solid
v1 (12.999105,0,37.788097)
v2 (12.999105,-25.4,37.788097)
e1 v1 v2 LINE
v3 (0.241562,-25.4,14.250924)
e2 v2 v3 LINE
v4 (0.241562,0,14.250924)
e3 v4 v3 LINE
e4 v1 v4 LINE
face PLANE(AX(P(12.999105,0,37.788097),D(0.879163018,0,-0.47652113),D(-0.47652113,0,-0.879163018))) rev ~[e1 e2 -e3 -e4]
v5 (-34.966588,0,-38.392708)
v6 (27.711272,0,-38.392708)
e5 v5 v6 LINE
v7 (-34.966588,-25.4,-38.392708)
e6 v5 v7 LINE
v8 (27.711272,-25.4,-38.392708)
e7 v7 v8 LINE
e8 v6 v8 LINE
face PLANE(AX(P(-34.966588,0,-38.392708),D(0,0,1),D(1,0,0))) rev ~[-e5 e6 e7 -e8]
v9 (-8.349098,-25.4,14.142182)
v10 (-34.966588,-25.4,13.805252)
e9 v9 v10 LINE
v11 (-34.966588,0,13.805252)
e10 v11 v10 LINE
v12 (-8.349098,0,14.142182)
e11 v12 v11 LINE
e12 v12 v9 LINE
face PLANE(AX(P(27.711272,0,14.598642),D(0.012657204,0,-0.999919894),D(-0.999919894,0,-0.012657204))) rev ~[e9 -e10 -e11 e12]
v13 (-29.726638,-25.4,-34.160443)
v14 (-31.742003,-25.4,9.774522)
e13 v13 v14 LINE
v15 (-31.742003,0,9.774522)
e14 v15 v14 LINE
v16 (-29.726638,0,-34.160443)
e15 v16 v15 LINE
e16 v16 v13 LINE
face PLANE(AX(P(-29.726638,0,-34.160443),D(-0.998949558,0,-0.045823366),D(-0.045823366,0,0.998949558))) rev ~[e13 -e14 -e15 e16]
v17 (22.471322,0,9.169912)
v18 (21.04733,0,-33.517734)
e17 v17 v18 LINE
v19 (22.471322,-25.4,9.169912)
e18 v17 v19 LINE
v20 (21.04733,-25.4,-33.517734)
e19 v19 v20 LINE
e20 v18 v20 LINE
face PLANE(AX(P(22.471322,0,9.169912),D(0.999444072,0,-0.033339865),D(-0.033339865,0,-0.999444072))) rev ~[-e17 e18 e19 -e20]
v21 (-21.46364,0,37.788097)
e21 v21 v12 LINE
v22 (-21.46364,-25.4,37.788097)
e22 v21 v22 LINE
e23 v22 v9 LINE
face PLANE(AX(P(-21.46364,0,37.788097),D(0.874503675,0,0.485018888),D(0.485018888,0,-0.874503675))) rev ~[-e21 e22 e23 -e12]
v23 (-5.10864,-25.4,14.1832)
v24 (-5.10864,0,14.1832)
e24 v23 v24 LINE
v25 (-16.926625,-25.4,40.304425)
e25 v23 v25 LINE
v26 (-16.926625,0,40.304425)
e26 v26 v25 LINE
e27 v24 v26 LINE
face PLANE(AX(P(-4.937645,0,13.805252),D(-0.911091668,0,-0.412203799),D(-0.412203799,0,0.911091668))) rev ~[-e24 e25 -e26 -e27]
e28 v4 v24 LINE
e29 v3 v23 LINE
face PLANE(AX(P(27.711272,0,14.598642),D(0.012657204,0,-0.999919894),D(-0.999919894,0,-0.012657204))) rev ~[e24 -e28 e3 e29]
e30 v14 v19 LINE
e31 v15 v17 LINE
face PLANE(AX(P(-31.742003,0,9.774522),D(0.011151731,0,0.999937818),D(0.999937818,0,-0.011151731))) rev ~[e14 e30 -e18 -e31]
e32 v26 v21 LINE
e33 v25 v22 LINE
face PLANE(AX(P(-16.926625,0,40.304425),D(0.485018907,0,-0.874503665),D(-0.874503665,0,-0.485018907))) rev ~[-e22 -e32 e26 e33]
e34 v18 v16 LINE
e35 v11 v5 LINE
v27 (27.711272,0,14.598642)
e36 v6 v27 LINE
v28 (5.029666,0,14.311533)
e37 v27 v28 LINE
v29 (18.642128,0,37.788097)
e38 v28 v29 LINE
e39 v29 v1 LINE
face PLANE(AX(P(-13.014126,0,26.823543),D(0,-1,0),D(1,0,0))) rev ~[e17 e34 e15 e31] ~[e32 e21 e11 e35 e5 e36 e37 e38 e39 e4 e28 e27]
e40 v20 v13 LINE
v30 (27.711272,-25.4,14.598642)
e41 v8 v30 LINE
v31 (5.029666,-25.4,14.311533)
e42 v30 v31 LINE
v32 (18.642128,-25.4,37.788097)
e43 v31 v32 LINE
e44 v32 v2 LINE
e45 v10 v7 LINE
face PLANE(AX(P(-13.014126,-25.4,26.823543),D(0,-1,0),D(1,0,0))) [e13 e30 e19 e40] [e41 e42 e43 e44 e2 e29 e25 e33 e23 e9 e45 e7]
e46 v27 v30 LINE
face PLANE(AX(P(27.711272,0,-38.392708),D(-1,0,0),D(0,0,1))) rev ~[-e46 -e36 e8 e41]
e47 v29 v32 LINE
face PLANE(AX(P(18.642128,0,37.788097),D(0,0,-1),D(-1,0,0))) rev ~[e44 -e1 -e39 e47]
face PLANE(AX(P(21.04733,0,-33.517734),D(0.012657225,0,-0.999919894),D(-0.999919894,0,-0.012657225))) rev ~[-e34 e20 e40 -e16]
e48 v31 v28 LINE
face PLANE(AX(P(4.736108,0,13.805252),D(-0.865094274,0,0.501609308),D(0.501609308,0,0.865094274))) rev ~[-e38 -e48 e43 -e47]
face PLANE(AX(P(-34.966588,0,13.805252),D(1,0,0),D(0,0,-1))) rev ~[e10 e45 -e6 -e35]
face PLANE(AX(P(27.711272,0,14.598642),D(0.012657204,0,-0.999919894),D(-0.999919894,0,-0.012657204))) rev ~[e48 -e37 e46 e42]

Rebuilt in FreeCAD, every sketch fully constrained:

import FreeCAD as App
import Part
import Sketcher
Q = App.Units.Quantity

doc = App.newDocument("Part")
body = doc.addObject("PartDesign::Body", "Body")

# Sketch on XZ plane
sketch1 = body.newObject("Sketcher::SketchObject", "Sketch")
sketch1.AttachmentSupport = (doc.getObject("XZ_Plane"), [""])
sketch1.MapMode = "FlatFace"
sketch1.addGeometry([
    Part.LineSegment(App.Vector(27.711272, 14.598642, 0), App.Vector(-34.966588, 13.805252, 0)),  # 0
    Part.LineSegment(App.Vector(-34.966588, 13.805252, 0), App.Vector(-34.966588, -38.392708, 0)),  # 1
    Part.LineSegment(App.Vector(-34.966588, -38.392708, 0), App.Vector(27.711272, -38.392708, 0)),  # 2
    Part.LineSegment(App.Vector(27.711272, -38.392708, 0), App.Vector(27.711272, 14.598642, 0)),  # 3
    Part.LineSegment(App.Vector(21.04733, -33.517734, 0), App.Vector(-29.726638, -34.160443, 0)),  # 4
    Part.LineSegment(App.Vector(-29.726638, -34.160443, 0), App.Vector(-31.742003, 9.774522, 0)),  # 5
    Part.LineSegment(App.Vector(-31.742003, 9.774522, 0), App.Vector(22.471322, 9.169912, 0)),  # 6
    Part.LineSegment(App.Vector(22.471322, 9.169912, 0), App.Vector(21.04733, -33.517734, 0)),  # 7
], False)
sketch1.addConstraint([
    Sketcher.Constraint("Coincident", 0, 2, 1, 1),
    Sketcher.Constraint("Coincident", 1, 2, 2, 1),
    Sketcher.Constraint("Coincident", 2, 2, 3, 1),
    Sketcher.Constraint("Coincident", 3, 2, 0, 1),
    Sketcher.Constraint("Coincident", 4, 2, 5, 1),
    Sketcher.Constraint("Coincident", 5, 2, 6, 1),
    Sketcher.Constraint("Coincident", 6, 2, 7, 1),
    Sketcher.Constraint("Coincident", 7, 2, 4, 1),
    Sketcher.Constraint("Vertical", 1),
    Sketcher.Constraint("Horizontal", 2),
    Sketcher.Constraint("Vertical", 3),
    Sketcher.Constraint("Parallel", 0, 4),
    Sketcher.Constraint("DistanceX", 2, 1, 2, 2, Q("62.67786 mm")),
    Sketcher.Constraint("DistanceY", 1, 2, 1, 1, Q("52.19796 mm")),
    Sketcher.Constraint("DistanceY", 3, 1, 3, 2, Q("52.99135 mm")),
    Sketcher.Constraint("Distance", 7, Q("42.71139 mm")),
    Sketcher.Constraint("DistanceX", 0, 2, -1, 1, Q("34.966588 mm")),
    Sketcher.Constraint("DistanceX", 4, 2, -1, 1, Q("29.726638 mm")),
    Sketcher.Constraint("DistanceY", -1, 1, 5, 2, Q("9.774522 mm")),
    Sketcher.Constraint("DistanceX", -1, 1, 7, 2, Q("21.04733 mm")),
    Sketcher.Constraint("DistanceY", 5, 2, 0, 2, Q("4.03073 mm")),
    Sketcher.Constraint("DistanceX", 6, 2, 3, 2, Q("5.23995 mm")),
    Sketcher.Constraint("DistanceY", 6, 2, 3, 2, Q("5.42873 mm")),
    Sketcher.Constraint("Distance", 5, Q("43.981165 mm")),
])
pad1 = body.newObject("PartDesign::Pad", "Pad")
pad1.Profile = sketch1
pad1.Length = Q("1 in")

# Sketch on XZ plane
sketch2 = body.newObject("Sketcher::SketchObject", "Sketch001")
sketch2.AttachmentSupport = (doc.getObject("XZ_Plane"), [""])
sketch2.MapMode = "FlatFace"
sketch2.addGeometry([
    Part.LineSegment(App.Vector(-21.46364, 37.788097, 0), App.Vector(-8.162229, 13.805252, 0)),  # 0
    Part.LineSegment(App.Vector(-8.162229, 13.805252, 0), App.Vector(-4.937645, 13.805252, 0)),  # 1
    Part.LineSegment(App.Vector(-4.937645, 13.805252, 0), App.Vector(-16.926625, 40.304425, 0)),  # 2
    Part.LineSegment(App.Vector(-16.926625, 40.304425, 0), App.Vector(-21.46364, 37.788097, 0)),  # 3
    Part.LineSegment(App.Vector(12.999105, 37.788097, 0), App.Vector(0, 13.805252, 0)),  # 4
    Part.LineSegment(App.Vector(0, 13.805252, 0), App.Vector(4.736108, 13.805252, 0)),  # 5
    Part.LineSegment(App.Vector(4.736108, 13.805252, 0), App.Vector(18.642128, 37.788097, 0)),  # 6
    Part.LineSegment(App.Vector(18.642128, 37.788097, 0), App.Vector(12.999105, 37.788097, 0)),  # 7
], False)
sketch2.addConstraint([
    Sketcher.Constraint("Coincident", 0, 2, 1, 1),
    Sketcher.Constraint("Coincident", 1, 2, 2, 1),
    Sketcher.Constraint("Coincident", 2, 2, 3, 1),
    Sketcher.Constraint("Coincident", 3, 2, 0, 1),
    Sketcher.Constraint("Coincident", 4, 2, 5, 1),
    Sketcher.Constraint("Coincident", 5, 2, 6, 1),
    Sketcher.Constraint("Coincident", 6, 2, 7, 1),
    Sketcher.Constraint("Coincident", 7, 2, 4, 1),
    Sketcher.Constraint("Horizontal", 1),
    Sketcher.Constraint("Horizontal", 5),
    Sketcher.Constraint("Horizontal", 7),
    Sketcher.Constraint("PointOnObject", 4, 2, -2),
    Sketcher.Constraint("Perpendicular", 0, 3),
    Sketcher.Constraint("Horizontal", 1, 2, 4, 2),
    Sketcher.Constraint("Horizontal", 3, 2, 6, 2),
    Sketcher.Constraint("Distance", 0, Q("27.424522 mm")),
    Sketcher.Constraint("Distance", 2, Q("29.085079 mm")),
    Sketcher.Constraint("Distance", 4, Q("27.279179 mm")),
    Sketcher.Constraint("Distance", 6, Q("27.722811 mm")),
    Sketcher.Constraint("DistanceX", 1, 1, 1, 2, Q("3.224584 mm")),
    Sketcher.Constraint("DistanceX", 5, 1, 5, 2, Q("4.736108 mm")),
    Sketcher.Constraint("DistanceX", 7, 2, 7, 1, Q("5.643023 mm")),
    Sketcher.Constraint("DistanceX", 0, 2, -1, 1, Q("8.162229 mm")),
    Sketcher.Constraint("DistanceY", -1, 1, 0, 2, Q("13.805252 mm")),
])
pad2 = body.newObject("PartDesign::Pad", "Pad001")
pad2.Profile = sketch2
pad2.Length = Q("1 in")

doc.recompute()
